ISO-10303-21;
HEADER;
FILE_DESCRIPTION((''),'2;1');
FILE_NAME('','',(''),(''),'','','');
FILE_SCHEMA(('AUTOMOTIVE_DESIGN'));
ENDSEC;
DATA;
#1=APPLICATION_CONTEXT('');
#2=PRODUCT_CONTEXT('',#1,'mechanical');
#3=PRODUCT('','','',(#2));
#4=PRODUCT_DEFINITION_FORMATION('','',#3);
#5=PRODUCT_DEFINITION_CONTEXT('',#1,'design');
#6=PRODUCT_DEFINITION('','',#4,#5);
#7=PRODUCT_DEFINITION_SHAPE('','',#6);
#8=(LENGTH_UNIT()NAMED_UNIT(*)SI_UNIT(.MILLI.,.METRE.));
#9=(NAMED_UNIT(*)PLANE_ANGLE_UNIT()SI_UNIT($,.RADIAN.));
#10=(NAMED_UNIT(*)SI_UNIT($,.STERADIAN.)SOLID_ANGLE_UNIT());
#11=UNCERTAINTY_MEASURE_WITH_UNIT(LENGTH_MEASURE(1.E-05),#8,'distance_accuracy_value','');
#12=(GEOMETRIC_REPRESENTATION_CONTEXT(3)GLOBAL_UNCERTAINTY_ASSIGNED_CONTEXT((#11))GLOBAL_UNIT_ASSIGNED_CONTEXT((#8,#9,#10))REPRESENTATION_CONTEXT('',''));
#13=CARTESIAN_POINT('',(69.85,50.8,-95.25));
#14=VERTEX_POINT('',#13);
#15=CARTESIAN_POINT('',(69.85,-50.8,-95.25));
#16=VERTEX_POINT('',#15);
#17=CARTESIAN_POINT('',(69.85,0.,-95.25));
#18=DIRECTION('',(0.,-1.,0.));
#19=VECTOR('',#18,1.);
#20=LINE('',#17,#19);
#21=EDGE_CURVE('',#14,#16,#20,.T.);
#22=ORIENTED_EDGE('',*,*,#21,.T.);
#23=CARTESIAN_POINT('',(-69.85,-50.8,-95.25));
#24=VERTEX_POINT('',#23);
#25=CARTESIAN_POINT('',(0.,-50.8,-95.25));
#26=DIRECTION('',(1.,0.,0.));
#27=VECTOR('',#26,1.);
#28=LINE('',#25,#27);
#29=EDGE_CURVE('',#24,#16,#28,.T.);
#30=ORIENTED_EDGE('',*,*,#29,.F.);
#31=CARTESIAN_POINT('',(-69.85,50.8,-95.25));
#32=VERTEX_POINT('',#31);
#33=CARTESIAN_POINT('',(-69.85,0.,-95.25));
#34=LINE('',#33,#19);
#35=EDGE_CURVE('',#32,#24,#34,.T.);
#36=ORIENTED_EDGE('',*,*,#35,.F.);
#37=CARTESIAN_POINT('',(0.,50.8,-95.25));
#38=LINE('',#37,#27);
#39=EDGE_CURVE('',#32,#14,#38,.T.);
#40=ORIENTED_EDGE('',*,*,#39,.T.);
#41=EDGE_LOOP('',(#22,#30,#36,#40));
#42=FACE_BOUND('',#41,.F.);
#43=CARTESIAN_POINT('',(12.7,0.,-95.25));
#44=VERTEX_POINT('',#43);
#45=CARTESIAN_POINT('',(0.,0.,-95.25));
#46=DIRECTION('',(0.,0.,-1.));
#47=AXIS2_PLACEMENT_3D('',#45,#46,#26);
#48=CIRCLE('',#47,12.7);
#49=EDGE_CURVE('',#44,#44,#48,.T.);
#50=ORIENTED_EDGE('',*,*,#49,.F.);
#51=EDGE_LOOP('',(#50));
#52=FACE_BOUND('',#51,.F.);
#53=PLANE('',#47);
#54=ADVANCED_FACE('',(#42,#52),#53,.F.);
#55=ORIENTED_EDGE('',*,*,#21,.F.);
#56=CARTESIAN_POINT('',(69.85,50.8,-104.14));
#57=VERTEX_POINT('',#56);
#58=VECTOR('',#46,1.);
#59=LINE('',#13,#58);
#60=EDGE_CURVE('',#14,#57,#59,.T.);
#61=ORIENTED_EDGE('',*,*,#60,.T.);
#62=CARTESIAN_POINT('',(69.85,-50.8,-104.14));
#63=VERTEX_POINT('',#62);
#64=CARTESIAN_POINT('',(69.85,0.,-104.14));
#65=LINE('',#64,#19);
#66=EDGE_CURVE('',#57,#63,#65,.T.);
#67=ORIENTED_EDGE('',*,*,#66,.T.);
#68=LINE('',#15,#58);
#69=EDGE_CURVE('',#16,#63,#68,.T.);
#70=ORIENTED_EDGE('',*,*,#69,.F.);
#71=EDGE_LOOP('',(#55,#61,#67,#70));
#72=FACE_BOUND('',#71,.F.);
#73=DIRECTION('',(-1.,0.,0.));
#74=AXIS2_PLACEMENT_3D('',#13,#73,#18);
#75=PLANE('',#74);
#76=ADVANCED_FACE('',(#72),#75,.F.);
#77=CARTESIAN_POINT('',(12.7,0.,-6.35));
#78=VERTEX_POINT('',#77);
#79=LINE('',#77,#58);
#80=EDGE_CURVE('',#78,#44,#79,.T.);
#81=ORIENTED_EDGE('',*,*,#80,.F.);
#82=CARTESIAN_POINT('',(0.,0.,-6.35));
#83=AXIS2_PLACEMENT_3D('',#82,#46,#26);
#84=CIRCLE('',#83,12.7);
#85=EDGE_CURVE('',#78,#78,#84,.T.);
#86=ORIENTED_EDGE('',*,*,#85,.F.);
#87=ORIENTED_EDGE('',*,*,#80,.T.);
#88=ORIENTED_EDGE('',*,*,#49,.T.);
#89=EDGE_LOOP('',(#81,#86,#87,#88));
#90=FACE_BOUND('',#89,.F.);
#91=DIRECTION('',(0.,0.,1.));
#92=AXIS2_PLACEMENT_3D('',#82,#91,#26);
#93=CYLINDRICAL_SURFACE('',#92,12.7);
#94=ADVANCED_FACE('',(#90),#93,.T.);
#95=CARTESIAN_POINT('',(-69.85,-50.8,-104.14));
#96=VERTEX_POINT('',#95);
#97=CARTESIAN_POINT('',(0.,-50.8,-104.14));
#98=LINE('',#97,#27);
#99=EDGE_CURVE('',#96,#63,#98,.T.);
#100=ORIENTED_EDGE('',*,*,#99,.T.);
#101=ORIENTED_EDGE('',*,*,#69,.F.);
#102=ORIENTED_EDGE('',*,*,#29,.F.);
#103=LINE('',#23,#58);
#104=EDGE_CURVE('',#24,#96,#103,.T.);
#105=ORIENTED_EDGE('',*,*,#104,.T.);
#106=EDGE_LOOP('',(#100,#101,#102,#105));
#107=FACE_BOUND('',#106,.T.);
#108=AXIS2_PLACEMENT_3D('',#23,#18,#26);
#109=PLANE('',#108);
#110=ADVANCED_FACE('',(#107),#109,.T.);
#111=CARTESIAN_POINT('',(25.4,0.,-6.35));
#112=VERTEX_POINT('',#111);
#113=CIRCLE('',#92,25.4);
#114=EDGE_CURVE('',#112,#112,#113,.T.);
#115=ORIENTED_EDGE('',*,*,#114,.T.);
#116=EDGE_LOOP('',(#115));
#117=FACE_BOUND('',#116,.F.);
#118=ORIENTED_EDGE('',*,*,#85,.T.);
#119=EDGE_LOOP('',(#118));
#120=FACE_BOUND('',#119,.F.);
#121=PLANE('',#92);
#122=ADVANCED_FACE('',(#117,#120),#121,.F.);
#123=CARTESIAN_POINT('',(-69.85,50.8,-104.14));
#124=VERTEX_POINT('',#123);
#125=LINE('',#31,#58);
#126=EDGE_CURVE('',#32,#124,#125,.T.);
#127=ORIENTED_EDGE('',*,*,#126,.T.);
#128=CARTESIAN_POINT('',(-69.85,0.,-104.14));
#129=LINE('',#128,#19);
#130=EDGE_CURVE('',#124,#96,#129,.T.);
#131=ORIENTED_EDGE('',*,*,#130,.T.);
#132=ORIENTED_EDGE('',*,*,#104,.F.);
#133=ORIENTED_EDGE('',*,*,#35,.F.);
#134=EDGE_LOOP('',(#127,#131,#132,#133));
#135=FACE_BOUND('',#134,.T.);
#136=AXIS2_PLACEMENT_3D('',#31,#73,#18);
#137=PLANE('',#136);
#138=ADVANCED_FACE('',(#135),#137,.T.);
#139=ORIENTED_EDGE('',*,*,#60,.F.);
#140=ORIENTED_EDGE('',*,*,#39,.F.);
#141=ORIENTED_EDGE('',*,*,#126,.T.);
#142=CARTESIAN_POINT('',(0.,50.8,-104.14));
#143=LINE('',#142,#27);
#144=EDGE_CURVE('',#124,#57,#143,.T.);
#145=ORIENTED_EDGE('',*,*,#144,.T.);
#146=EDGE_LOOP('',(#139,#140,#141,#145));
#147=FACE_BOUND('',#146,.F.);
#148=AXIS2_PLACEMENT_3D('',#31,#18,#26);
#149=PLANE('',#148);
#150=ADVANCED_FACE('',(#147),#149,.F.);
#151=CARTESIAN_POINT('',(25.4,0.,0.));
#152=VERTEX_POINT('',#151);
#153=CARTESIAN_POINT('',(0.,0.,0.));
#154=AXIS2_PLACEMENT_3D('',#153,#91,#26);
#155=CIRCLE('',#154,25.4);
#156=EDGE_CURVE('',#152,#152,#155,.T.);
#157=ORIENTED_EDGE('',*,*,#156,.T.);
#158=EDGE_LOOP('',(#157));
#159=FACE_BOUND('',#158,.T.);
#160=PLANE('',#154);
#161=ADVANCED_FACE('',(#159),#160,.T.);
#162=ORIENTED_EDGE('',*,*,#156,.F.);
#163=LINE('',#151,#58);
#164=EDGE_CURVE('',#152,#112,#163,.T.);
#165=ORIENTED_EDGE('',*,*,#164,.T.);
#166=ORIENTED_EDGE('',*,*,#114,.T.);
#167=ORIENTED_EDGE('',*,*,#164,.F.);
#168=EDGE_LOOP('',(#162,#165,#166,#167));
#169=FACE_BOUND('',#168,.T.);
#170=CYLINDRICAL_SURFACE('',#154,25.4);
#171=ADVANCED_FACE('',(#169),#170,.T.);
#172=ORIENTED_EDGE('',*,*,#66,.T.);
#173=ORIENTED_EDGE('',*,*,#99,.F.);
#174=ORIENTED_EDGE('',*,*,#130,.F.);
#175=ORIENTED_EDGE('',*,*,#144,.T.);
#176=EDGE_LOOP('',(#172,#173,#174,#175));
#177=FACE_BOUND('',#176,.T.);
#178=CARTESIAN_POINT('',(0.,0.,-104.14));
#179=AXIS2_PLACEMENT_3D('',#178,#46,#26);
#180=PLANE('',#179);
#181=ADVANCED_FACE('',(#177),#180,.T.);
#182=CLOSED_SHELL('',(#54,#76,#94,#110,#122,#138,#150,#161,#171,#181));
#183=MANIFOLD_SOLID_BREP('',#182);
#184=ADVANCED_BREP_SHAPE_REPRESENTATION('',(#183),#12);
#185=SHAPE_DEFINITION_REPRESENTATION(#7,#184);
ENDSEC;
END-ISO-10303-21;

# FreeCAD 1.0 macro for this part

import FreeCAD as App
import Part
import Sketcher
from FreeCAD import Vector
Q = App.Units.Quantity

doc = App.newDocument("Part")
body = doc.addObject("PartDesign::Body", "Body")

# Sketch on XY plane
sketch1 = body.newObject("Sketcher::SketchObject", "Sketch")
sketch1.AttachmentSupport = (doc.getObject("XY_Plane"), [""])
sketch1.MapMode = "FlatFace"
sketch1.addGeometry(Part.Circle(Vector(0, 0, 0), Vector(0, 0, 1), 25), False)
sketch1.addConstraint([
    Sketcher.Constraint("Coincident", 0, 3, -1, 1),
    Sketcher.Constraint("Diameter", 0, Q("2 in")),
])
pad1 = body.newObject("PartDesign::Pad", "Pad")
pad1.Profile = sketch1
pad1.Length = Q("0.25 in")
pad1.Reversed = True

# Sketch on XY plane
sketch2 = body.newObject("Sketcher::SketchObject", "Sketch001")
sketch2.AttachmentSupport = (doc.getObject("XY_Plane"), [""])
sketch2.MapMode = "FlatFace"
sketch2.AttachmentOffset = App.Placement(Vector(0, 0, -0.25 * 25.4), App.Rotation())
sketch2.addGeometry(Part.Circle(Vector(0, 0, 0), Vector(0, 0, 1), 13), False)
sketch2.addConstraint([
    Sketcher.Constraint("Coincident", 0, 3, -1, 1),
    Sketcher.Constraint("Diameter", 0, Q("1 in")),
])
pad2 = body.newObject("PartDesign::Pad", "Pad001")
pad2.Profile = sketch2
pad2.Length = Q("3.5 in")
pad2.Reversed = True

# Sketch on XY plane
sketch3 = body.newObject("Sketcher::SketchObject", "Sketch002")
sketch3.AttachmentSupport = (doc.getObject("XY_Plane"), [""])
sketch3.MapMode = "FlatFace"
sketch3.AttachmentOffset = App.Placement(Vector(0, 0, -3.75 * 25.4), App.Rotation())
sketch3.addGeometry([
    Part.LineSegment(Vector(-70, -51, 0), Vector(-70, 51, 0)),
    Part.LineSegment(Vector(-70, 51, 0), Vector(70, 51, 0)),
    Part.LineSegment(Vector(70, 51, 0), Vector(70, -51, 0)),
    Part.LineSegment(Vector(70, -51, 0), Vector(-70, -51, 0)),
], False)
sketch3.addConstraint([
    Sketcher.Constraint("Coincident", 0, 2, 1, 1),
    Sketcher.Constraint("Coincident", 1, 2, 2, 1),
    Sketcher.Constraint("Coincident", 2, 2, 3, 1),
    Sketcher.Constraint("Coincident", 3, 2, 0, 1),
    Sketcher.Constraint("Vertical", 0),
    Sketcher.Constraint("Horizontal", 1),
    Sketcher.Constraint("Vertical", 2),
    Sketcher.Constraint("Horizontal", 3),
    Sketcher.Constraint("Symmetric", 0, 2, 2, 2, -1, 1),
    Sketcher.Constraint("DistanceY", 0, 1, 0, 2, Q("4 in")),
    Sketcher.Constraint("DistanceX", 1, 1, 1, 2, Q("5.5 in")),
])
pad3 = body.newObject("PartDesign::Pad", "Pad002")
pad3.Profile = sketch3
pad3.Length = Q("0.35 in")
pad3.Reversed = True

doc.recompute()
